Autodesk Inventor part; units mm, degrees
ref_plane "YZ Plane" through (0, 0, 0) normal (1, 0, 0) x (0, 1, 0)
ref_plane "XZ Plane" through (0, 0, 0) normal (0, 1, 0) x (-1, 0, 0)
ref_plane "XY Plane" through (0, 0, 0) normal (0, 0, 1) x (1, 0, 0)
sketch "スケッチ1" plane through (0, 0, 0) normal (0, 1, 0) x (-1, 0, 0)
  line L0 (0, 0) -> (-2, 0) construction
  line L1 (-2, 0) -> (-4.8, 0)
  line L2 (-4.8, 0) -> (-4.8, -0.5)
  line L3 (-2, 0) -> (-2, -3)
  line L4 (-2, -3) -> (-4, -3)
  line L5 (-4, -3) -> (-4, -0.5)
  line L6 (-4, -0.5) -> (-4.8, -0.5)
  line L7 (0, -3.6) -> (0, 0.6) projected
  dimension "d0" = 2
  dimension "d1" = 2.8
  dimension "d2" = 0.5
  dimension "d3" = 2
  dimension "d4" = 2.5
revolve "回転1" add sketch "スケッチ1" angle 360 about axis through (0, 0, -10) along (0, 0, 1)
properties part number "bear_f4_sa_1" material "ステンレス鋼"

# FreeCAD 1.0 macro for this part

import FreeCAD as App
import Part
import Sketcher
Q = App.Units.Quantity

doc = App.newDocument("Part")
body = doc.addObject("PartDesign::Body", "Body")

# Sketch on XZ plane
sketch1 = doc.addObject("Sketcher::SketchObject", "Sketch")
body.addObject(sketch1)
sketch1.AttachmentSupport = (doc.XZ_Plane, [""])
sketch1.MapMode = "FlatFace"
sketch1.addGeometry([
    Part.LineSegment(App.Vector(2, -3, 0), App.Vector(2, 0, 0)),  # 0
    Part.LineSegment(App.Vector(2, 0, 0), App.Vector(4.8, 0, 0)),  # 1
    Part.LineSegment(App.Vector(4.8, 0, 0), App.Vector(4.8, -0.5, 0)),  # 2
    Part.LineSegment(App.Vector(4.8, -0.5, 0), App.Vector(4, -0.5, 0)),  # 3
    Part.LineSegment(App.Vector(4, -0.5, 0), App.Vector(4, -3, 0)),  # 4
    Part.LineSegment(App.Vector(4, -3, 0), App.Vector(2, -3, 0)),  # 5
], False)
sketch1.addConstraint([
    Sketcher.Constraint("Coincident", 0, 2, 1, 1),
    Sketcher.Constraint("Coincident", 1, 2, 2, 1),
    Sketcher.Constraint("Coincident", 2, 2, 3, 1),
    Sketcher.Constraint("Coincident", 3, 2, 4, 1),
    Sketcher.Constraint("Coincident", 4, 2, 5, 1),
    Sketcher.Constraint("Coincident", 5, 2, 0, 1),
    Sketcher.Constraint("Vertical", 0),
    Sketcher.Constraint("Horizontal", 1),
    Sketcher.Constraint("Vertical", 2),
    Sketcher.Constraint("Horizontal", 3),
    Sketcher.Constraint("Vertical", 4),
    Sketcher.Constraint("Horizontal", 5),
    Sketcher.Constraint("PointOnObject", 0, 2, -1),
    Sketcher.Constraint("DistanceX", 5, 2, 5, 1, Q("2 mm")),
    Sketcher.Constraint("DistanceX", 1, 1, 1, 2, Q("2.8 mm")),
    Sketcher.Constraint("DistanceY", 2, 2, 2, 1, Q("0.5 mm")),
    Sketcher.Constraint("DistanceY", 4, 2, 4, 1, Q("2.5 mm")),
    Sketcher.Constraint("DistanceX", -1, 1, 0, 2, Q("2 mm")),
])
revolution = doc.addObject("PartDesign::Revolution", "Revolution")
body.addObject(revolution)
revolution.Profile = sketch1
revolution.ReferenceAxis = (sketch1, ["V_Axis"])
revolution.Angle = 360

doc.recompute()
